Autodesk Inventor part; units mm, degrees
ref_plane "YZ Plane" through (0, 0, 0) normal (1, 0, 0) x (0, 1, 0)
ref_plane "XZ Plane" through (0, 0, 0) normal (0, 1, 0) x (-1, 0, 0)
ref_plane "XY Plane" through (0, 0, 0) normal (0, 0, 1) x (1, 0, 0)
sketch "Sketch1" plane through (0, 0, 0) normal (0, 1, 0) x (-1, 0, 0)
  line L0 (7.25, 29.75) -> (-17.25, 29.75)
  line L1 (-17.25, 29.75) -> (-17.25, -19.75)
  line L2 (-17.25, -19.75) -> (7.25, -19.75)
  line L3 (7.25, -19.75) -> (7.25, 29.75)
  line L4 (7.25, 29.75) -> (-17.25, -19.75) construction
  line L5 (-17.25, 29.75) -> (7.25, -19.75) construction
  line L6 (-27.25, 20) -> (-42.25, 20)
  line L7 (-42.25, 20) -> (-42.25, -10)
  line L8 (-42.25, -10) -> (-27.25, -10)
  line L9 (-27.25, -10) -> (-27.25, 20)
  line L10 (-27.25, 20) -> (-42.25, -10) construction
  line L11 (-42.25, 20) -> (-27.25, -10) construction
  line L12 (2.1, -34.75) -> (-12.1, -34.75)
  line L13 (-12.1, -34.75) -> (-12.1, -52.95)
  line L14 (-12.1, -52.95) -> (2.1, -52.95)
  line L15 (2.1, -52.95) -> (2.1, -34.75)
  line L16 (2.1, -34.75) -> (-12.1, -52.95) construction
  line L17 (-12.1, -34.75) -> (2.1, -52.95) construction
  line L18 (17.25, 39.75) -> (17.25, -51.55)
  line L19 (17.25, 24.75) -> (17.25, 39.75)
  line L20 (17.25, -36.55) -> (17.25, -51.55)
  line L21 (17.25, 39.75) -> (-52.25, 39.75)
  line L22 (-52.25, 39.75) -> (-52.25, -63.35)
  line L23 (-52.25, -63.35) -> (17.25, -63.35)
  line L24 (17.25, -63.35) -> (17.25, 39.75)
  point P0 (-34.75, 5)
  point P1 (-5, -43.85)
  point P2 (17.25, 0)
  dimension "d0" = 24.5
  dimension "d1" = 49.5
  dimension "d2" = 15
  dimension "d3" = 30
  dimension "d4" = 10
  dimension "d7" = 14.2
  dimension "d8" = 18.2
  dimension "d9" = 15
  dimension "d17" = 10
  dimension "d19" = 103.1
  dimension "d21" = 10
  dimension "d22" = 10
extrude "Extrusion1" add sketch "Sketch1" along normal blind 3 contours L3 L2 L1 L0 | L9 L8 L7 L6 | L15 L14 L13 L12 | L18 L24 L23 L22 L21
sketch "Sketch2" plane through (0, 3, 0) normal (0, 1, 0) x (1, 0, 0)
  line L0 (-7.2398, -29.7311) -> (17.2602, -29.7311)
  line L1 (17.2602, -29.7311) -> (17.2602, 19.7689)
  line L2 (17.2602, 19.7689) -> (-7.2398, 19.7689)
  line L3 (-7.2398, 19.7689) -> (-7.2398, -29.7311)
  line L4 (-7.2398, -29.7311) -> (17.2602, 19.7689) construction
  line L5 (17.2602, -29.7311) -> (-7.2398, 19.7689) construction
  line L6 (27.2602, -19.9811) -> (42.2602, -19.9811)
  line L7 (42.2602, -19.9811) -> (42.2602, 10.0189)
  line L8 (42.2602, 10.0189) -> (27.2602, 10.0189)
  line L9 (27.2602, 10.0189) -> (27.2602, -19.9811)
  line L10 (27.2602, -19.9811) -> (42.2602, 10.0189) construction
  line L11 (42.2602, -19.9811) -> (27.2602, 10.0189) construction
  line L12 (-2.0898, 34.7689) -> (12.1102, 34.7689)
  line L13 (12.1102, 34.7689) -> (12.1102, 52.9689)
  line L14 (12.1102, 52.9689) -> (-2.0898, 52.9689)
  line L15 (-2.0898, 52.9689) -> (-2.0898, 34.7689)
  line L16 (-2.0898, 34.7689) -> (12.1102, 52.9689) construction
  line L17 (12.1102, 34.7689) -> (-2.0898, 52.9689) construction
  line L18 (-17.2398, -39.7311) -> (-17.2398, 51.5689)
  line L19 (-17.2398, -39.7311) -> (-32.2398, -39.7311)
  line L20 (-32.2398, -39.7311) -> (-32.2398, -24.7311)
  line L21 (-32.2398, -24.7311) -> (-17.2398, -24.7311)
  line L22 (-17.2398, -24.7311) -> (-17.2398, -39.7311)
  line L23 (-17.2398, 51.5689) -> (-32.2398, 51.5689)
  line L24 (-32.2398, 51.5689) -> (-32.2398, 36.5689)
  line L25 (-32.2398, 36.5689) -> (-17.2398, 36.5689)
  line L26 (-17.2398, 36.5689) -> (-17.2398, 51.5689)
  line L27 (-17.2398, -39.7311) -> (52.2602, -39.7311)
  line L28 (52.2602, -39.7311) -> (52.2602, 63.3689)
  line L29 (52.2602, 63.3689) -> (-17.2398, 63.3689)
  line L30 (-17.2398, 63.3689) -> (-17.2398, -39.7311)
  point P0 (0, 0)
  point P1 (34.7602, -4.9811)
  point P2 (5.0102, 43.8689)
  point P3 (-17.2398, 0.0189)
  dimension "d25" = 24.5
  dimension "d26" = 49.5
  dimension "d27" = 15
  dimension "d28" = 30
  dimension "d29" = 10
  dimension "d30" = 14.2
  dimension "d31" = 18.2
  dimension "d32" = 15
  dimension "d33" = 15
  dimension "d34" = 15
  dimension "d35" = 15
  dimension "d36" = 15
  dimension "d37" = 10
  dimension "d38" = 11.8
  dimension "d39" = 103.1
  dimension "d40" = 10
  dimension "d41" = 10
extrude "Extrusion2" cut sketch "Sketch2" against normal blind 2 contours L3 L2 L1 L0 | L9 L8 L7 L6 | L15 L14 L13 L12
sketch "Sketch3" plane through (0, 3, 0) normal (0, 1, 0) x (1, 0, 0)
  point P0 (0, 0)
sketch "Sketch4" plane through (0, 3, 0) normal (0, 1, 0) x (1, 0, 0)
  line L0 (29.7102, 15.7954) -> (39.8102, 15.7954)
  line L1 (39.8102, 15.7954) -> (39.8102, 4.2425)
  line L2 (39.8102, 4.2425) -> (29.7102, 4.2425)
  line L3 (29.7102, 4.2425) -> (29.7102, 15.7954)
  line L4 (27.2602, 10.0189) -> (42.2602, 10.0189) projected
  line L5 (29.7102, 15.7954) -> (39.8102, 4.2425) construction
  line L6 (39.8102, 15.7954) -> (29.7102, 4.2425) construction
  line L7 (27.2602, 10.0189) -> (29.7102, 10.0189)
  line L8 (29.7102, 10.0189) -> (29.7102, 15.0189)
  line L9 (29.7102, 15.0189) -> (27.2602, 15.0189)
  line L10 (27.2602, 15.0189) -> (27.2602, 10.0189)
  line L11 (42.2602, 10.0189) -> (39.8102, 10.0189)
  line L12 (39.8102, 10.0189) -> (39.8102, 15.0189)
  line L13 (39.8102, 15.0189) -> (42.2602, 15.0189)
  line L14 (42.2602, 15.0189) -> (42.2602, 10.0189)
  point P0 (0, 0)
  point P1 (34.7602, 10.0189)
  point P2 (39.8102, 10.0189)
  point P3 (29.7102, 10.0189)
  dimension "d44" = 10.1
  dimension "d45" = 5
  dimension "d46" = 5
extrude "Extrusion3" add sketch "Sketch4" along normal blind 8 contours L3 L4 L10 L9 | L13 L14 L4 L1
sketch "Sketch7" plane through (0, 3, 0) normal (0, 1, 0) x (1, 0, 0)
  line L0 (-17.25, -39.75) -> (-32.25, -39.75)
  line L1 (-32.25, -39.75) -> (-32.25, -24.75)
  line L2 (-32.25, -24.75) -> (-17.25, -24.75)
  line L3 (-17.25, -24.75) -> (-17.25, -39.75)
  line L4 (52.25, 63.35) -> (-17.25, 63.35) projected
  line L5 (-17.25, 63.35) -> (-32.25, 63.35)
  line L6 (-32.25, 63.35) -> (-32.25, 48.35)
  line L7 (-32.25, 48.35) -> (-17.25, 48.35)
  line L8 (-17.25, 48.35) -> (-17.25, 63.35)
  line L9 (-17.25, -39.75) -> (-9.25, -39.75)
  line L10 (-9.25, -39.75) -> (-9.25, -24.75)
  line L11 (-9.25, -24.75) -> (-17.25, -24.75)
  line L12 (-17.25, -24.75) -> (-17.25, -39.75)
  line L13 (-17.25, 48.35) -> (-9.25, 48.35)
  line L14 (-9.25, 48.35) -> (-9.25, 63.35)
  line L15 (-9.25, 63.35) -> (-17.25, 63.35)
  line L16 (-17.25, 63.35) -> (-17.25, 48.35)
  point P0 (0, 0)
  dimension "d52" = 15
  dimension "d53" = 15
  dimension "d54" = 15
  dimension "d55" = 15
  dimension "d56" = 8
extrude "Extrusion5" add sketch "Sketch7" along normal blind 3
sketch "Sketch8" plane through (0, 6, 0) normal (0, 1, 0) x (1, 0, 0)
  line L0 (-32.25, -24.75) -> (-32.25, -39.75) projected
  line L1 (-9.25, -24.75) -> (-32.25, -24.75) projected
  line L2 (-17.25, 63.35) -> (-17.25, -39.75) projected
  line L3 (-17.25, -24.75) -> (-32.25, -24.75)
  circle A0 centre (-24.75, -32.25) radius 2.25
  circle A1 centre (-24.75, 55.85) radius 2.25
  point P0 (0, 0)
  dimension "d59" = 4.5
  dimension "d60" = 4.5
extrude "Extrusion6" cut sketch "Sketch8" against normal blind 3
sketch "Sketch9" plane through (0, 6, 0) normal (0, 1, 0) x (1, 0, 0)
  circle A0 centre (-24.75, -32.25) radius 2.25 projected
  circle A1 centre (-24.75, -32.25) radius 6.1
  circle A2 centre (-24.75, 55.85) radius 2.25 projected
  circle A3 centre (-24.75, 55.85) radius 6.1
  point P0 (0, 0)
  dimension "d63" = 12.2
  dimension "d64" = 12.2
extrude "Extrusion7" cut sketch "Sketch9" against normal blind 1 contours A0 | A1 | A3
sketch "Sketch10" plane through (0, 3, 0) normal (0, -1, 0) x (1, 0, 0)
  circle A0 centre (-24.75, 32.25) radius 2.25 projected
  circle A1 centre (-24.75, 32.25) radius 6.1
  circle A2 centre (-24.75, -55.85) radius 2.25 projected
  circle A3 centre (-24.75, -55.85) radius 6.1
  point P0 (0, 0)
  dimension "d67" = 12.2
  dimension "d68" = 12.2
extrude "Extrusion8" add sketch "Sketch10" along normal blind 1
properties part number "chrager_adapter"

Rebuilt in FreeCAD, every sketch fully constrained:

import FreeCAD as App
import Part
import Sketcher
from FreeCAD import Vector

doc = App.newDocument("Part")
params = doc.addObject("Spreadsheet::Sheet", "Params")
for row, (alias, value) in enumerate([
    ("sketch1_height", "103.1 mm"),
    ("sketch1_width", "69.5 mm"),
    ("pad1_length", "3 mm"),
    ("sketch2_width", "15 mm"),
    ("sketch2_height", "30 mm"),
    ("sketch2_width2", "24.5 mm"),
    ("sketch2_width3", "14.2 mm"),
    ("sketch2_height2", "49.5 mm"),
    ("pocket1_length", "2 mm"),
    ("sketch3_height", "5 mm"),
    ("pad2_length", "8 mm"),
    ("sketch4_height", "15 mm"),
    ("sketch4_width", "23 mm"),
    ("pad3_length", "3 mm"),
    ("sketch5_diameter", "4.5 mm"),
    ("pocket2_length", "3 mm"),
    ("sketch6_diameter", "12.2 mm"),
    ("sketch6_diameter2", "4.5 mm"),
    ("pocket3_length", "1 mm"),
    ("sketch7_diameter", "12.2 mm"),
    ("sketch7_diameter2", "4.5 mm"),
    ("pad4_length", "1 mm"),
], start=1):
    params.set(f"A{row}", alias)
    params.set(f"B{row}", "=" + value)
    params.setAlias(f"B{row}", alias)

body = doc.addObject("PartDesign::Body", "Body")

# Sketch on XZ plane
sketch1 = body.newObject("Sketcher::SketchObject", "Sketch")
sketch1.AttachmentSupport = (doc.getObject("XZ_Plane"), [""])
sketch1.MapMode = "FlatFace"
sketch1.addGeometry(Part.LineSegment(Vector(-17.25, 39.75, 0), Vector(52.25, 39.75, 0)), False)
sketch1.addGeometry(Part.LineSegment(Vector(52.25, 39.75, 0), Vector(52.25, -63.35, 0)), False)
sketch1.addGeometry(Part.LineSegment(Vector(52.25, -63.35, 0), Vector(-17.25, -63.35, 0)), False)
sketch1.addGeometry(Part.LineSegment(Vector(-17.25, -63.35, 0), Vector(-17.25, 39.75, 0)), False)
sketch1.addConstraint(Sketcher.Constraint("Coincident", 0, 2, 1, 1))
sketch1.addConstraint(Sketcher.Constraint("Coincident", 1, 2, 2, 1))
sketch1.addConstraint(Sketcher.Constraint("Coincident", 2, 2, 3, 1))
sketch1.addConstraint(Sketcher.Constraint("Coincident", 3, 2, 0, 1))
sketch1.addConstraint(Sketcher.Constraint("Horizontal", 0))
sketch1.addConstraint(Sketcher.Constraint("Vertical", 1))
sketch1.addConstraint(Sketcher.Constraint("Horizontal", 2))
sketch1.addConstraint(Sketcher.Constraint("Vertical", 3))
sketch1.addConstraint(Sketcher.Constraint("DistanceY", 1, 2, 1, 1, 103.1))
sketch1.addConstraint(Sketcher.Constraint("DistanceX", 0, 1, 0, 2, 69.5))
sketch1.addConstraint(Sketcher.Constraint("DistanceX", -1, 1, 0, 2, 52.25))
sketch1.addConstraint(Sketcher.Constraint("DistanceY", -1, 1, 0, 2, 39.75))
sketch1.setExpression("Constraints[8]", "Params.sketch1_height")
sketch1.setExpression("Constraints[9]", "Params.sketch1_width")
pad1 = body.newObject("PartDesign::Pad", "Pad")
pad1.Profile = sketch1
pad1.setExpression("Length", "Params.pad1_length")
pad1.Reversed = True

# Sketch on XZ plane
sketch2 = body.newObject("Sketcher::SketchObject", "Sketch001")
sketch2.AttachmentSupport = (doc.getObject("XZ_Plane"), [""])
sketch2.MapMode = "FlatFace"
sketch2.AttachmentOffset = App.Placement(Vector(0, 0, -3), App.Rotation())
sketch2.addGeometry(Part.LineSegment(Vector(-7.2398, -19.7689, 0), Vector(-7.2398, 29.7311, 0)), False)
sketch2.addGeometry(Part.LineSegment(Vector(-7.2398, 29.7311, 0), Vector(17.2602, 29.7311, 0)), False)
sketch2.addGeometry(Part.LineSegment(Vector(17.2602, 29.7311, 0), Vector(17.2602, -19.7689, 0)), False)
sketch2.addGeometry(Part.LineSegment(Vector(17.2602, -19.7689, 0), Vector(-7.2398, -19.7689, 0)), False)
sketch2.addGeometry(Part.LineSegment(Vector(27.2602, -10.0189, 0), Vector(27.2602, 19.9811, 0)), False)
sketch2.addGeometry(Part.LineSegment(Vector(27.2602, 19.9811, 0), Vector(42.2602, 19.9811, 0)), False)
sketch2.addGeometry(Part.LineSegment(Vector(42.2602, 19.9811, 0), Vector(42.2602, -10.0189, 0)), False)
sketch2.addGeometry(Part.LineSegment(Vector(42.2602, -10.0189, 0), Vector(27.2602, -10.0189, 0)), False)
sketch2.addGeometry(Part.LineSegment(Vector(-2.0898, -52.9689, 0), Vector(-2.0898, -34.7689, 0)), False)
sketch2.addGeometry(Part.LineSegment(Vector(-2.0898, -34.7689, 0), Vector(12.1102, -34.7689, 0)), False)
sketch2.addGeometry(Part.LineSegment(Vector(12.1102, -34.7689, 0), Vector(12.1102, -52.9689, 0)), False)
sketch2.addGeometry(Part.LineSegment(Vector(12.1102, -52.9689, 0), Vector(-2.0898, -52.9689, 0)), False)
sketch2.addConstraint(Sketcher.Constraint("Coincident", 0, 2, 1, 1))
sketch2.addConstraint(Sketcher.Constraint("Coincident", 1, 2, 2, 1))
sketch2.addConstraint(Sketcher.Constraint("Coincident", 2, 2, 3, 1))
sketch2.addConstraint(Sketcher.Constraint("Coincident", 3, 2, 0, 1))
sketch2.addConstraint(Sketcher.Constraint("Coincident", 4, 2, 5, 1))
sketch2.addConstraint(Sketcher.Constraint("Coincident", 5, 2, 6, 1))
sketch2.addConstraint(Sketcher.Constraint("Coincident", 6, 2, 7, 1))
sketch2.addConstraint(Sketcher.Constraint("Coincident", 7, 2, 4, 1))
sketch2.addConstraint(Sketcher.Constraint("Coincident", 8, 2, 9, 1))
sketch2.addConstraint(Sketcher.Constraint("Coincident", 9, 2, 10, 1))
sketch2.addConstraint(Sketcher.Constraint("Coincident", 10, 2, 11, 1))
sketch2.addConstraint(Sketcher.Constraint("Coincident", 11, 2, 8, 1))
sketch2.addConstraint(Sketcher.Constraint("Vertical", 0))
sketch2.addConstraint(Sketcher.Constraint("Horizontal", 1))
sketch2.addConstraint(Sketcher.Constraint("Vertical", 2))
sketch2.addConstraint(Sketcher.Constraint("Horizontal", 3))
sketch2.addConstraint(Sketcher.Constraint("Vertical", 4))
sketch2.addConstraint(Sketcher.Constraint("Horizontal", 5))
sketch2.addConstraint(Sketcher.Constraint("Vertical", 6))
sketch2.addConstraint(Sketcher.Constraint("Horizontal", 7))
sketch2.addConstraint(Sketcher.Constraint("Vertical", 8))
sketch2.addConstraint(Sketcher.Constraint("Horizontal", 9))
sketch2.addConstraint(Sketcher.Constraint("Vertical", 10))
sketch2.addConstraint(Sketcher.Constraint("Horizontal", 11))
sketch2.addConstraint(Sketcher.Constraint("DistanceX", 5, 1, 5, 2, 15.0))
sketch2.addConstraint(Sketcher.Constraint("DistanceY", 4, 1, 4, 2, 30.0))
sketch2.addConstraint(Sketcher.Constraint("DistanceX", 1, 1, 1, 2, 24.5))
sketch2.addConstraint(Sketcher.Constraint("DistanceX", 9, 1, 9, 2, 14.2))
sketch2.addConstraint(Sketcher.Constraint("DistanceY", 0, 1, 0, 2, 49.5))
sketch2.addConstraint(Sketcher.Constraint("DistanceY", 8, 1, 8, 2, 18.2))
sketch2.addConstraint(Sketcher.Constraint("DistanceX", 1, 2, 4, 2, 10.0))
sketch2.addConstraint(Sketcher.Constraint("DistanceY", 8, 2, 3, 2, 15.0))
sketch2.addConstraint(Sketcher.Constraint("DistanceY", 4, 2, 1, 2, 9.75))
sketch2.addConstraint(Sketcher.Constraint("DistanceX", 3, 2, 8, 2, 5.15))
sketch2.addConstraint(Sketcher.Constraint("DistanceY", -1, 1, 0, 2, 29.731))
sketch2.addConstraint(Sketcher.Constraint("DistanceX", 0, 2, -1, 1, 7.2398))
sketch2.setExpression("Constraints[24]", "Params.sketch2_width")
sketch2.setExpression("Constraints[25]", "Params.sketch2_height")
sketch2.setExpression("Constraints[26]", "Params.sketch2_width2")
sketch2.setExpression("Constraints[27]", "Params.sketch2_width3")
sketch2.setExpression("Constraints[28]", "Params.sketch2_height2")
pocket1 = body.newObject("PartDesign::Pocket", "Pocket")
pocket1.Profile = sketch2
pocket1.setExpression("Length", "Params.pocket1_length")
pocket1.Reversed = True

# Sketch on XZ plane
sketch3 = body.newObject("Sketcher::SketchObject", "Sketch002")
sketch3.AttachmentSupport = (doc.getObject("XZ_Plane"), [""])
sketch3.MapMode = "FlatFace"
sketch3.AttachmentOffset = App.Placement(Vector(0, 0, -3), App.Rotation())
sketch3.addGeometry(Part.LineSegment(Vector(29.7102, -10.0189, 0), Vector(29.7102, -15.0189, 0)), False)
sketch3.addGeometry(Part.LineSegment(Vector(29.7102, -15.0189, 0), Vector(27.2602, -15.0189, 0)), False)
sketch3.addGeometry(Part.LineSegment(Vector(27.2602, -15.0189, 0), Vector(27.2602, -10.0189, 0)), False)
sketch3.addGeometry(Part.LineSegment(Vector(27.2602, -10.0189, 0), Vector(29.7102, -10.0189, 0)), False)
sketch3.addGeometry(Part.LineSegment(Vector(42.2602, -15.0189, 0), Vector(39.8102, -15.0189, 0)), False)
sketch3.addGeometry(Part.LineSegment(Vector(39.8102, -15.0189, 0), Vector(39.8102, -10.0189, 0)), False)
sketch3.addGeometry(Part.LineSegment(Vector(39.8102, -10.0189, 0), Vector(42.2602, -10.0189, 0)), False)
sketch3.addGeometry(Part.LineSegment(Vector(42.2602, -10.0189, 0), Vector(42.2602, -15.0189, 0)), False)
sketch3.addConstraint(Sketcher.Constraint("Coincident", 0, 2, 1, 1))
sketch3.addConstraint(Sketcher.Constraint("Coincident", 1, 2, 2, 1))
sketch3.addConstraint(Sketcher.Constraint("Coincident", 2, 2, 3, 1))
sketch3.addConstraint(Sketcher.Constraint("Coincident", 3, 2, 0, 1))
sketch3.addConstraint(Sketcher.Constraint("Coincident", 4, 2, 5, 1))
sketch3.addConstraint(Sketcher.Constraint("Coincident", 5, 2, 6, 1))
sketch3.addConstraint(Sketcher.Constraint("Coincident", 6, 2, 7, 1))
sketch3.addConstraint(Sketcher.Constraint("Coincident", 7, 2, 4, 1))
sketch3.addConstraint(Sketcher.Constraint("Vertical", 0))
sketch3.addConstraint(Sketcher.Constraint("Horizontal", 1))
sketch3.addConstraint(Sketcher.Constraint("Vertical", 2))
sketch3.addConstraint(Sketcher.Constraint("Horizontal", 3))
sketch3.addConstraint(Sketcher.Constraint("Horizontal", 4))
sketch3.addConstraint(Sketcher.Constraint("Vertical", 5))
sketch3.addConstraint(Sketcher.Constraint("Horizontal", 6))
sketch3.addConstraint(Sketcher.Constraint("Vertical", 7))
sketch3.addConstraint(Sketcher.Constraint("Horizontal", 1, 2, 4, 2))
sketch3.addConstraint(Sketcher.Constraint("Horizontal", 3, 2, 5, 2))
sketch3.addConstraint(Sketcher.Constraint("Equal", 3, 4))
sketch3.addConstraint(Sketcher.Constraint("DistanceY", 0, 2, 0, 1, 5.0))
sketch3.addConstraint(Sketcher.Constraint("DistanceX", 0, 2, 4, 2, 10.1))
sketch3.addConstraint(Sketcher.Constraint("DistanceX", 2, 2, 6, 2, 15.0))
sketch3.addConstraint(Sketcher.Constraint("DistanceY", 0, 2, -1, 1, 15.019))
sketch3.addConstraint(Sketcher.Constraint("DistanceX", -1, 1, 0, 2, 29.7102))
sketch3.setExpression("Constraints[19]", "Params.sketch3_height")
pad2 = body.newObject("PartDesign::Pad", "Pad001")
pad2.Profile = sketch3
pad2.setExpression("Length", "Params.pad2_length")
pad2.Reversed = True

# Sketch on XZ plane
sketch4 = body.newObject("Sketcher::SketchObject", "Sketch003")
sketch4.AttachmentSupport = (doc.getObject("XZ_Plane"), [""])
sketch4.MapMode = "FlatFace"
sketch4.AttachmentOffset = App.Placement(Vector(0, 0, -3), App.Rotation())
sketch4.addGeometry(Part.LineSegment(Vector(-32.25, 39.75, 0), Vector(-9.25, 39.75, 0)), False)
sketch4.addGeometry(Part.LineSegment(Vector(-9.25, 39.75, 0), Vector(-9.25, 24.75, 0)), False)
sketch4.addGeometry(Part.LineSegment(Vector(-9.25, 24.75, 0), Vector(-32.25, 24.75, 0)), False)
sketch4.addGeometry(Part.LineSegment(Vector(-32.25, 24.75, 0), Vector(-32.25, 39.75, 0)), False)
sketch4.addGeometry(Part.LineSegment(Vector(-9.25, -48.35, 0), Vector(-9.25, -63.35, 0)), False)
sketch4.addGeometry(Part.LineSegment(Vector(-9.25, -63.35, 0), Vector(-32.25, -63.35, 0)), False)
sketch4.addGeometry(Part.LineSegment(Vector(-32.25, -63.35, 0), Vector(-32.25, -48.35, 0)), False)
sketch4.addGeometry(Part.LineSegment(Vector(-32.25, -48.35, 0), Vector(-9.25, -48.35, 0)), False)
sketch4.addConstraint(Sketcher.Constraint("Coincident", 0, 2, 1, 1))
sketch4.addConstraint(Sketcher.Constraint("Coincident", 1, 2, 2, 1))
sketch4.addConstraint(Sketcher.Constraint("Coincident", 2, 2, 3, 1))
sketch4.addConstraint(Sketcher.Constraint("Coincident", 3, 2, 0, 1))
sketch4.addConstraint(Sketcher.Constraint("Coincident", 4, 2, 5, 1))
sketch4.addConstraint(Sketcher.Constraint("Coincident", 5, 2, 6, 1))
sketch4.addConstraint(Sketcher.Constraint("Coincident", 6, 2, 7, 1))
sketch4.addConstraint(Sketcher.Constraint("Coincident", 7, 2, 4, 1))
sketch4.addConstraint(Sketcher.Constraint("Horizontal", 0))
sketch4.addConstraint(Sketcher.Constraint("Vertical", 1))
sketch4.addConstraint(Sketcher.Constraint("Horizontal", 2))
sketch4.addConstraint(Sketcher.Constraint("Vertical", 3))
sketch4.addConstraint(Sketcher.Constraint("Vertical", 4))
sketch4.addConstraint(Sketcher.Constraint("Horizontal", 5))
sketch4.addConstraint(Sketcher.Constraint("Vertical", 6))
sketch4.addConstraint(Sketcher.Constraint("Horizontal", 7))
sketch4.addConstraint(Sketcher.Constraint("Vertical", 1, 2, 4, 2))
sketch4.addConstraint(Sketcher.Constraint("Vertical", 3, 2, 5, 2))
sketch4.addConstraint(Sketcher.Constraint("Equal", 3, 4))
sketch4.addConstraint(Sketcher.Constraint("DistanceY", 1, 2, 1, 1, 15.0))
sketch4.addConstraint(Sketcher.Constraint("DistanceX", 0, 1, 0, 2, 23.0))
sketch4.addConstraint(Sketcher.Constraint("DistanceY", 4, 2, 1, 2, 88.1))
sketch4.addConstraint(Sketcher.Constraint("DistanceX", 0, 2, -1, 1, 9.25))
sketch4.addConstraint(Sketcher.Constraint("DistanceY", -1, 1, 0, 2, 39.75))
sketch4.setExpression("Constraints[19]", "Params.sketch4_height")
sketch4.setExpression("Constraints[20]", "Params.sketch4_width")
pad3 = body.newObject("PartDesign::Pad", "Pad002")
pad3.Profile = sketch4
pad3.setExpression("Length", "Params.pad3_length")
pad3.Reversed = True

# Sketch on XZ plane
sketch5 = body.newObject("Sketcher::SketchObject", "Sketch004")
sketch5.AttachmentSupport = (doc.getObject("XZ_Plane"), [""])
sketch5.MapMode = "FlatFace"
sketch5.AttachmentOffset = App.Placement(Vector(0, 0, -6), App.Rotation())
sketch5.addGeometry(Part.Circle(Vector(-24.75, 32.25, 0), Vector(0, 0, 1), 2.25), False)
sketch5.addGeometry(Part.Circle(Vector(-24.75, -55.85, 0), Vector(0, 0, 1), 2.25), False)
sketch5.addConstraint(Sketcher.Constraint("Equal", 0, 1))
sketch5.addConstraint(Sketcher.Constraint("Vertical", 0, 3, 1, 3))
sketch5.addConstraint(Sketcher.Constraint("Diameter", 0, 4.5))
sketch5.addConstraint(Sketcher.Constraint("DistanceY", 1, 3, 0, 3, 88.1))
sketch5.addConstraint(Sketcher.Constraint("DistanceX", 0, 3, -1, 1, 24.75))
sketch5.addConstraint(Sketcher.Constraint("DistanceY", -1, 1, 0, 3, 32.25))
sketch5.setExpression("Constraints[2]", "Params.sketch5_diameter")
pocket2 = body.newObject("PartDesign::Pocket", "Pocket001")
pocket2.Profile = sketch5
pocket2.setExpression("Length", "Params.pocket2_length")
pocket2.Reversed = True

# Sketch on XZ plane
sketch6 = body.newObject("Sketcher::SketchObject", "Sketch005")
sketch6.AttachmentSupport = (doc.getObject("XZ_Plane"), [""])
sketch6.MapMode = "FlatFace"
sketch6.AttachmentOffset = App.Placement(Vector(0, 0, -6), App.Rotation())
sketch6.addGeometry(Part.Circle(Vector(-24.75, 32.25, 0), Vector(0, 0, 1), 6.1), False)
sketch6.addGeometry(Part.Circle(Vector(-24.75, -55.85, 0), Vector(0, 0, 1), 6.1), False)
sketch6.addGeometry(Part.Circle(Vector(-24.75, -55.85, 0), Vector(0, 0, 1), 2.25), False)
sketch6.addConstraint(Sketcher.Constraint("Coincident", 2, 3, 1, 3))
sketch6.addConstraint(Sketcher.Constraint("Equal", 0, 1))
sketch6.addConstraint(Sketcher.Constraint("Vertical", 0, 3, 1, 3))
sketch6.addConstraint(Sketcher.Constraint("Diameter", 0, 12.2))
sketch6.addConstraint(Sketcher.Constraint("Diameter", 2, 4.5))
sketch6.addConstraint(Sketcher.Constraint("DistanceY", 1, 3, 0, 3, 88.1))
sketch6.addConstraint(Sketcher.Constraint("DistanceX", 0, 3, -1, 1, 24.75))
sketch6.addConstraint(Sketcher.Constraint("DistanceY", -1, 1, 0, 3, 32.25))
sketch6.setExpression("Constraints[3]", "Params.sketch6_diameter")
sketch6.setExpression("Constraints[4]", "Params.sketch6_diameter2")
pocket3 = body.newObject("PartDesign::Pocket", "Pocket002")
pocket3.Profile = sketch6
pocket3.setExpression("Length", "Params.pocket3_length")
pocket3.Reversed = True

# Sketch on XZ plane
sketch7 = body.newObject("Sketcher::SketchObject", "Sketch006")
sketch7.AttachmentSupport = (doc.getObject("XZ_Plane"), [""])
sketch7.MapMode = "FlatFace"
sketch7.AttachmentOffset = App.Placement(Vector(0, 0, -3), App.Rotation())
sketch7.addGeometry(Part.Circle(Vector(-24.75, 32.25, 0), Vector(0, 0, 1), 6.1), False)
sketch7.addGeometry(Part.Circle(Vector(-24.75, 32.25, 0), Vector(0, 0, 1), 2.25), False)
sketch7.addGeometry(Part.Circle(Vector(-24.75, -55.85, 0), Vector(0, 0, 1), 6.1), False)
sketch7.addGeometry(Part.Circle(Vector(-24.75, -55.85, 0), Vector(0, 0, 1), 2.25), False)
sketch7.addConstraint(Sketcher.Constraint("Coincident", 1, 3, 0, 3))
sketch7.addConstraint(Sketcher.Constraint("Coincident", 3, 3, 2, 3))
sketch7.addConstraint(Sketcher.Constraint("Equal", 0, 2))
sketch7.addConstraint(Sketcher.Constraint("Equal", 1, 3))
sketch7.addConstraint(Sketcher.Constraint("Vertical", 1, 3, 2, 3))
sketch7.addConstraint(Sketcher.Constraint("Diameter", 0, 12.2))
sketch7.addConstraint(Sketcher.Constraint("Diameter", 1, 4.5))
sketch7.addConstraint(Sketcher.Constraint("DistanceY", 2, 3, 0, 3, 88.1))
sketch7.addConstraint(Sketcher.Constraint("DistanceX", 0, 3, -1, 1, 24.75))
sketch7.addConstraint(Sketcher.Constraint("DistanceY", -1, 1, 0, 3, 32.25))
sketch7.setExpression("Constraints[5]", "Params.sketch7_diameter")
sketch7.setExpression("Constraints[6]", "Params.sketch7_diameter2")
pad4 = body.newObject("PartDesign::Pad", "Pad003")
pad4.Profile = sketch7
pad4.setExpression("Length", "Params.pad4_length")

doc.recompute()
